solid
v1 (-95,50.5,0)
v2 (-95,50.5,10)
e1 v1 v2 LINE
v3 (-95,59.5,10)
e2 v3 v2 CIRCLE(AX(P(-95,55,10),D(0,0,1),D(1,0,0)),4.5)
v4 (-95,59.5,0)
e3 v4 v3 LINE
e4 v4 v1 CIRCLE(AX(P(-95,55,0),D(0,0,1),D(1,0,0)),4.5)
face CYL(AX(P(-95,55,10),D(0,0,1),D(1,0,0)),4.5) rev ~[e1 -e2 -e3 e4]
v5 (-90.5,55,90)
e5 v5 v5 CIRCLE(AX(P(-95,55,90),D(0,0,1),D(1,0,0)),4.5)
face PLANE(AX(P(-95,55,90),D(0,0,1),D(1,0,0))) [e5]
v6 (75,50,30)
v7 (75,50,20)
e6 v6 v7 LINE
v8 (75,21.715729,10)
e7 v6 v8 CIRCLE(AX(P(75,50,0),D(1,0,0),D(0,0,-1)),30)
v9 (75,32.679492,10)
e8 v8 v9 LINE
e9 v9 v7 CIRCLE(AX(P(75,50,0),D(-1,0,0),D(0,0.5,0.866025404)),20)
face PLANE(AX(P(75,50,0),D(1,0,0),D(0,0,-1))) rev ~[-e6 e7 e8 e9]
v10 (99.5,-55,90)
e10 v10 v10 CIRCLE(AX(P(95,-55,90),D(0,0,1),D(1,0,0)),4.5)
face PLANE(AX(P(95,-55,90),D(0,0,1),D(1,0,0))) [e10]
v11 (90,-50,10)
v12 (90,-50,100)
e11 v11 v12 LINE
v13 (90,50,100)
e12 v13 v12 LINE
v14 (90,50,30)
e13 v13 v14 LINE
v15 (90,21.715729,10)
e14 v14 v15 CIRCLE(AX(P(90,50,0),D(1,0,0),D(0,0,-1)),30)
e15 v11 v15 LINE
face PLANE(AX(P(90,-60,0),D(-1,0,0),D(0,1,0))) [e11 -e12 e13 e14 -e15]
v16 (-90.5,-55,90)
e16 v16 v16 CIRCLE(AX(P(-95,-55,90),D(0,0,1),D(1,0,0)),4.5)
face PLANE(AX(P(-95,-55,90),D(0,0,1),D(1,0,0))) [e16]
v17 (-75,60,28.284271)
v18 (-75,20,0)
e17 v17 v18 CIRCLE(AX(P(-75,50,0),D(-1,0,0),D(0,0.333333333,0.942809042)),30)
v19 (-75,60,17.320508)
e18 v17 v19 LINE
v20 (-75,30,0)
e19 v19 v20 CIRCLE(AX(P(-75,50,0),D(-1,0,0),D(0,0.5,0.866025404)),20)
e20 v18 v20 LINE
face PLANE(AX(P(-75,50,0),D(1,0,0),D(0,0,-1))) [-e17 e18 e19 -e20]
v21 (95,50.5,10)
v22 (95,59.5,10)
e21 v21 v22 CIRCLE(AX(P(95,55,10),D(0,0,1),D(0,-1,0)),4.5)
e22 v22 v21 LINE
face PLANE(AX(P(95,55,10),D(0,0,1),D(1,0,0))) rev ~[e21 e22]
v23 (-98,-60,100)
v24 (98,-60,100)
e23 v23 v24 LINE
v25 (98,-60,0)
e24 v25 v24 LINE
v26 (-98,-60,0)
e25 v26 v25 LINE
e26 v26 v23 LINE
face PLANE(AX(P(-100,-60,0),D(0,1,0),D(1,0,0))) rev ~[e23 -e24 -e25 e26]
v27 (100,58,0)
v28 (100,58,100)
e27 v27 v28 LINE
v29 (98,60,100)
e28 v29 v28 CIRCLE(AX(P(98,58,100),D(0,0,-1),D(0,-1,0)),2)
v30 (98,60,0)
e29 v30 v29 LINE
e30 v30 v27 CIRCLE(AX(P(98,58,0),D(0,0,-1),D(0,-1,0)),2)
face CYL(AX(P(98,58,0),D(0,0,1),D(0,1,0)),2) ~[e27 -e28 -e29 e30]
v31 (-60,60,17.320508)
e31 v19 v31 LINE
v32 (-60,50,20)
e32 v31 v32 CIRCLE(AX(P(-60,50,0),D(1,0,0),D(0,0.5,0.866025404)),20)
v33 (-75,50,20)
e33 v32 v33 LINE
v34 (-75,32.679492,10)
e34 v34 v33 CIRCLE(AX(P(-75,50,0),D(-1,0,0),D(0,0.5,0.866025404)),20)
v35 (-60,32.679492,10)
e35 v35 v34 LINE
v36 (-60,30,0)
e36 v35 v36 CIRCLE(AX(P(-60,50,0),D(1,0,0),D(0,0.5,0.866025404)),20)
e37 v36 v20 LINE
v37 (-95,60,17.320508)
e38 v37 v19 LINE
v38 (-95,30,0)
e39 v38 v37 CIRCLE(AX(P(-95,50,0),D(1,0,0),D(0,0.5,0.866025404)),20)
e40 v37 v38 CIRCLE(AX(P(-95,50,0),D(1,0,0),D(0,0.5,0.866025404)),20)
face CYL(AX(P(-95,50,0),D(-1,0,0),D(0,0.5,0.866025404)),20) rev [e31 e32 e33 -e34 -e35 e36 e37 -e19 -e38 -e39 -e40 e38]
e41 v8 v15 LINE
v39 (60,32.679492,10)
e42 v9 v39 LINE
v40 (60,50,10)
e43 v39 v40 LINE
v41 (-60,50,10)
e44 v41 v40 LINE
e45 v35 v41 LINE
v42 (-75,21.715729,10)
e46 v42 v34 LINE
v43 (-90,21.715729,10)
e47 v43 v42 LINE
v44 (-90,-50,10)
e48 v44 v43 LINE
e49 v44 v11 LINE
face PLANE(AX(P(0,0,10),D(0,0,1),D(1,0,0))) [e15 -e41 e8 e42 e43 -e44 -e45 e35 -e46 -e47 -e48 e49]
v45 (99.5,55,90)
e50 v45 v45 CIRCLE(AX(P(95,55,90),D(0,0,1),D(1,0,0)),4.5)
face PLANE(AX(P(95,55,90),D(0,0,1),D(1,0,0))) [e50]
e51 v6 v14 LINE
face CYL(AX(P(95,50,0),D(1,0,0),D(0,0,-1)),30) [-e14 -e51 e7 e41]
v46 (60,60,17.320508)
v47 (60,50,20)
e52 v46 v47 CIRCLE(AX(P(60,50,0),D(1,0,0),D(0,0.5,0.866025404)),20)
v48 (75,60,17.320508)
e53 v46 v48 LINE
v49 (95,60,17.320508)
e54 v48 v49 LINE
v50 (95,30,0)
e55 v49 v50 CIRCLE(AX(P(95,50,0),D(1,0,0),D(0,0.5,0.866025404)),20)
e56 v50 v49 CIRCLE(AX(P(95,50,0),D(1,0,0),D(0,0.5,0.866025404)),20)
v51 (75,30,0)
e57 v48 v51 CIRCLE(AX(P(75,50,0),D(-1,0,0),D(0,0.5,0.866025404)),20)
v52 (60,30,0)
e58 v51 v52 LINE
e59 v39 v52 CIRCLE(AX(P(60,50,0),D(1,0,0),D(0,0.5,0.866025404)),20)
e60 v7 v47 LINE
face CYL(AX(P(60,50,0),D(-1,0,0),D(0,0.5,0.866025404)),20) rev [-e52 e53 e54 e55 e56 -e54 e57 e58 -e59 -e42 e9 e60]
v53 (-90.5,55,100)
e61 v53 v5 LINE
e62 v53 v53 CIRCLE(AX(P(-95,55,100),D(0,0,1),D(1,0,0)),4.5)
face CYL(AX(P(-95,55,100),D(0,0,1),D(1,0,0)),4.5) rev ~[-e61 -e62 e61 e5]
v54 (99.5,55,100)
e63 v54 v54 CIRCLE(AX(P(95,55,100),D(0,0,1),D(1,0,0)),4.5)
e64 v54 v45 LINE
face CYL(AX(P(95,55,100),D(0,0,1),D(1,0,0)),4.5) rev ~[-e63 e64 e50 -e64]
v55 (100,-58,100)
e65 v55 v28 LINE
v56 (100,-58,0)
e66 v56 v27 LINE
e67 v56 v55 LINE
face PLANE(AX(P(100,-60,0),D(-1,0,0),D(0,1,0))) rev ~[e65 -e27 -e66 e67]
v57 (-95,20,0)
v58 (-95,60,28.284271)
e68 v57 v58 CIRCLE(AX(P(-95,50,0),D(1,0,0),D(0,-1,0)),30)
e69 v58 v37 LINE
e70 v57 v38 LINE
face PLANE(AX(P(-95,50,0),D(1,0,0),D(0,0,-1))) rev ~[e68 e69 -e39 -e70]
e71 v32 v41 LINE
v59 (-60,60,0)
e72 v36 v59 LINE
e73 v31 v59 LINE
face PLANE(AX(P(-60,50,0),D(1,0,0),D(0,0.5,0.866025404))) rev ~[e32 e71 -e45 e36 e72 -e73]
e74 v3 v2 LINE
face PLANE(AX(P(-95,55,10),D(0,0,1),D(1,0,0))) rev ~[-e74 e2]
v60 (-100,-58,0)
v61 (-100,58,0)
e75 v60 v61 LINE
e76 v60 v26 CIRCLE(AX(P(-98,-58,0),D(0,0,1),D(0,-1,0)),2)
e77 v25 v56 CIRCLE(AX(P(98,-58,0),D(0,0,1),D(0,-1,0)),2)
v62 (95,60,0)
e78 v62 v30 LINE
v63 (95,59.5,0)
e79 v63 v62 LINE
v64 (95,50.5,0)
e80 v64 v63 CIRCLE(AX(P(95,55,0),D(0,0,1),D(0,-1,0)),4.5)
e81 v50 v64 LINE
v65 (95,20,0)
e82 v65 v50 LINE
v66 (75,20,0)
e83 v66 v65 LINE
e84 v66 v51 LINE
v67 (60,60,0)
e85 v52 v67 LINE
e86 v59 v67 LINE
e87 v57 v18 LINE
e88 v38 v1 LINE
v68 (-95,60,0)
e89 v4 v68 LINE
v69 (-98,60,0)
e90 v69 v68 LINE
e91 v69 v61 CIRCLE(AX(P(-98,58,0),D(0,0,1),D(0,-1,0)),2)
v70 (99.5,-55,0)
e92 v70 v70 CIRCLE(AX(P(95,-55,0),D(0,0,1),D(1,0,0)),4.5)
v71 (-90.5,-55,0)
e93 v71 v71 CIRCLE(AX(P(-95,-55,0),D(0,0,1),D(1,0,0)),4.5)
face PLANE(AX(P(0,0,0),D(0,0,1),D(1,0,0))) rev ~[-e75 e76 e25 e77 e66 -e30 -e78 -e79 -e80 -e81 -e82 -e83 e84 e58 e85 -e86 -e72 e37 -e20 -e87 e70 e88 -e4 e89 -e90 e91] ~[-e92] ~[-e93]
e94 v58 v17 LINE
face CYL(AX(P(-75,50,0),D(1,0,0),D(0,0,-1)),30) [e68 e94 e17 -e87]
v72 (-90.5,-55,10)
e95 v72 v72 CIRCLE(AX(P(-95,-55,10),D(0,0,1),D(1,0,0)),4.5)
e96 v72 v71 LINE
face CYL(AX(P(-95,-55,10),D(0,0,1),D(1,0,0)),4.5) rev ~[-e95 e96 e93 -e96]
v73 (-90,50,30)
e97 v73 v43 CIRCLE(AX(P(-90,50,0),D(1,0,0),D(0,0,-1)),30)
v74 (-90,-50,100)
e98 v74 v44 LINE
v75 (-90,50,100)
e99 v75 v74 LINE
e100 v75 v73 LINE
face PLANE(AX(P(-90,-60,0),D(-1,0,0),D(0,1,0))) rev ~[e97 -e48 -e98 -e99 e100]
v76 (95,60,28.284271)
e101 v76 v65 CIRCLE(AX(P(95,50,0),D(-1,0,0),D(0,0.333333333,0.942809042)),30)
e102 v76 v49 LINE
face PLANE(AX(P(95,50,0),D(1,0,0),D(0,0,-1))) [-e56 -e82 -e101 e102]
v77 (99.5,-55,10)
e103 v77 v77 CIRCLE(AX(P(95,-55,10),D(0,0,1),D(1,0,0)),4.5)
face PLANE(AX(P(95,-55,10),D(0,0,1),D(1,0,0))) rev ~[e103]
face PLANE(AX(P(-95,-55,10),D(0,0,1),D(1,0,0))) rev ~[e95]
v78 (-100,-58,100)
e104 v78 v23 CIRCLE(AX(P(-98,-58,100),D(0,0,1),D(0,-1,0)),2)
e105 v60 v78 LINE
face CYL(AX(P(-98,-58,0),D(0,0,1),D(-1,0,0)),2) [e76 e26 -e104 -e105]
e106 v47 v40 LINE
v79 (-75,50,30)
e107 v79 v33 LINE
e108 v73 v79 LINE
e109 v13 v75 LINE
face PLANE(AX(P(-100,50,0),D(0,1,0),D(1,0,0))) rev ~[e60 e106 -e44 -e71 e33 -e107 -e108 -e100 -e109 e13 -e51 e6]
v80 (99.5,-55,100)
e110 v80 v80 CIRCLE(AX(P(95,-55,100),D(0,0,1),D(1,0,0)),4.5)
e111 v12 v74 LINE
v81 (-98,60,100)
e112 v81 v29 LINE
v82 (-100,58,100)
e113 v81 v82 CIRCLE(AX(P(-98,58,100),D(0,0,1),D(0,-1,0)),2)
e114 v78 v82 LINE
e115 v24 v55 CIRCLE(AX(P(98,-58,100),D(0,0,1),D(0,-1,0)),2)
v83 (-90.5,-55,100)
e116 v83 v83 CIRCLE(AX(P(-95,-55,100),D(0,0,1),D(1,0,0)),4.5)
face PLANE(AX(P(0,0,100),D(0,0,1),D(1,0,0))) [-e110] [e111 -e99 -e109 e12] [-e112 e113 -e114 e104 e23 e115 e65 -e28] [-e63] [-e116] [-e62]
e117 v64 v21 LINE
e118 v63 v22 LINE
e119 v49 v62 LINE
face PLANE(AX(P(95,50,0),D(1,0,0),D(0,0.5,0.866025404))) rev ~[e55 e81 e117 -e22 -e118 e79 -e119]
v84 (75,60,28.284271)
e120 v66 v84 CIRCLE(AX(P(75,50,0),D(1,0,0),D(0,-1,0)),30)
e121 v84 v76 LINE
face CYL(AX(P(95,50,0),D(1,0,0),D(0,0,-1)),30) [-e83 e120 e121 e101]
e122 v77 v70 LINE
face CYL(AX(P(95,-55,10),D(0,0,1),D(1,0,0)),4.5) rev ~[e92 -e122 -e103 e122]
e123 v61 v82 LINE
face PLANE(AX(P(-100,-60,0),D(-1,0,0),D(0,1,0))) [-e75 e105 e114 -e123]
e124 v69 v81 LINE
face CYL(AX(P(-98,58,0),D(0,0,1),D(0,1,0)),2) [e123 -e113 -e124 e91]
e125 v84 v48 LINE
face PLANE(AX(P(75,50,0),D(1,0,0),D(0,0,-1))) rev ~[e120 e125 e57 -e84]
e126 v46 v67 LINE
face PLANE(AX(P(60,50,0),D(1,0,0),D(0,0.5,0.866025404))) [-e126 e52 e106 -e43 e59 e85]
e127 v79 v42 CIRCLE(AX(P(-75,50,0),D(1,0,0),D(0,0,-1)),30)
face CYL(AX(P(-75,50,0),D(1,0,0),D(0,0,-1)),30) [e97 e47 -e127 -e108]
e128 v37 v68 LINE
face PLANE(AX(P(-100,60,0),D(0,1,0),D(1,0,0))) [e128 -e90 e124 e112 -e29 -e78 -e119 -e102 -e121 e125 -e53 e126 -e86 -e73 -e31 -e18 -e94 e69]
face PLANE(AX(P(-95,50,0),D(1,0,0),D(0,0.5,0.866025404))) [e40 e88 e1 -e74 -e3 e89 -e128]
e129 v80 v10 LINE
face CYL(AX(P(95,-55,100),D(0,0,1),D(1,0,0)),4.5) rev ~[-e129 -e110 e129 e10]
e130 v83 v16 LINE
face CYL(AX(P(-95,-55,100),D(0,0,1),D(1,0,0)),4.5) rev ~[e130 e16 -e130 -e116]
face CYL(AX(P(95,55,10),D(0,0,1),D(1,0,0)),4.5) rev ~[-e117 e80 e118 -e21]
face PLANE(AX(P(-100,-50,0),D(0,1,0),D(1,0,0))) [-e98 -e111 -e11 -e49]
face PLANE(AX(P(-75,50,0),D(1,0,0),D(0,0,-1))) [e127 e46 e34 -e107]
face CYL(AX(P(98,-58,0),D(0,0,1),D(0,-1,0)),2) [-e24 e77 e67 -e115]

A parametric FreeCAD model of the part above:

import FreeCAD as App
import Part
import Sketcher

V = App.Vector


def edges_at(feature, points):
    """Names of the edges that pass closest to the given points."""
    edges = feature.Shape.Edges
    near = lambda p: min(range(len(edges)), key=lambda i: edges[i].distToShape(Part.Vertex(*p))[0])
    return sorted({f"Edge{near(p) + 1}" for p in points})


def faces_at(feature, points):
    """Names of the faces that lie closest to the given points."""
    faces = feature.Shape.Faces
    near = lambda p: min(range(len(faces)), key=lambda i: faces[i].distToShape(Part.Vertex(*p))[0])
    return sorted({f"Face{near(p) + 1}" for p in points})


def add_polygon(sketch, points):
    """Adds a closed chain of lines whose ends are joined by coincident constraints."""
    first, n = sketch.GeometryCount, len(points)
    for a, b in zip(points, points[1:] + points[:1]):
        sketch.addGeometry(Part.LineSegment(App.Vector(*a, 0), App.Vector(*b, 0)), False)
    for i in range(n):
        sketch.addConstraint(Sketcher.Constraint("Coincident", first + i, 2, first + (i + 1) % n, 1))

doc = App.newDocument("Part")
body = doc.addObject("PartDesign::Body", "Body")

# Sketch on XY plane
sketch1 = body.newObject("Sketcher::SketchObject", "Sketch")
sketch1.AttachmentSupport = (doc.getObject("XY_Plane"), [""])
sketch1.MapMode = "FlatFace"
add_polygon(sketch1, [(-100, 60), (-100, -60), (100, -60), (100, 60)])  # lines 0-3
sketch1.addConstraint([
    Sketcher.Constraint("Vertical", 0),
    Sketcher.Constraint("Horizontal", 1),
    Sketcher.Constraint("Vertical", 2),
    Sketcher.Constraint("Horizontal", 3),
    Sketcher.Constraint("Symmetric", 0, 2, 2, 2, -1, 1),
    Sketcher.Constraint("DistanceX", 1, 1, 1, 2, 200.0),
    Sketcher.Constraint("DistanceY", 0, 2, 0, 1, 120.0),
])
pad1 = body.newObject("PartDesign::Pad", "Pad")
pad1.Profile = sketch1
pad1.Length = 100
doc.recompute()

thickness = body.newObject("PartDesign::Thickness", "Thickness")
thickness.Base = (pad1, faces_at(pad1, [(0, 0, 100)]))
thickness.Value = 10
thickness.Reversed = True
thickness.Join = "Intersection"

# Sketch on YZ plane
sketch2 = body.newObject("Sketcher::SketchObject", "Sketch001")
sketch2.AttachmentSupport = (doc.getObject("YZ_Plane"), [""])
sketch2.MapMode = "FlatFace"
sketch2.AttachmentOffset = App.Placement(V(0, 0, -75), App.Rotation())
sketch2.addGeometry(Part.Circle(V(50, 0, 0), V(0, 0, 1), 30), False)
sketch2.addConstraint([
    Sketcher.Constraint("PointOnObject", 0, 3, -1),
    Sketcher.Constraint("Diameter", 0, 60.0),
    Sketcher.Constraint("DistanceX", -1, 1, 0, 3, 50.0),
])
pad2 = body.newObject("PartDesign::Pad", "Pad001")
pad2.Profile = sketch2
pad2.Length = 20
pad2.Reversed = True

# Sketch on YZ plane
sketch3 = body.newObject("Sketcher::SketchObject", "Sketch002")
sketch3.AttachmentSupport = (doc.getObject("YZ_Plane"), [""])
sketch3.MapMode = "FlatFace"
sketch3.AttachmentOffset = App.Placement(V(0, 0, 95), App.Rotation())
sketch3.addGeometry(Part.Circle(V(50, 0, 0), V(0, 0, 1), 30), False)
sketch3.addConstraint([
    Sketcher.Constraint("PointOnObject", 0, 3, -1),
    Sketcher.Constraint("Diameter", 0, 60.0),
    Sketcher.Constraint("DistanceX", -1, 1, 0, 3, 50.0),
])
pad3 = body.newObject("PartDesign::Pad", "Pad002")
pad3.Profile = sketch3
pad3.Length = 20
pad3.Reversed = True

# Sketch on YZ plane
sketch4 = body.newObject("Sketcher::SketchObject", "Sketch003")
sketch4.AttachmentSupport = (doc.getObject("YZ_Plane"), [""])
sketch4.MapMode = "FlatFace"
sketch4.AttachmentOffset = App.Placement(V(0, 0, -95), App.Rotation())
sketch4.addGeometry(Part.Circle(V(50, 0, 0), V(0, 0, 1), 20), False)
sketch4.addConstraint([
    Sketcher.Constraint("PointOnObject", 0, 3, -1),
    Sketcher.Constraint("Diameter", 0, 40.0),
    Sketcher.Constraint("DistanceX", -1, 1, 0, 3, 50.0),
])
pocket1 = body.newObject("PartDesign::Pocket", "Pocket")
pocket1.Profile = sketch4
pocket1.Length = 35
pocket1.Reversed = True

# Sketch on YZ plane
sketch5 = body.newObject("Sketcher::SketchObject", "Sketch004")
sketch5.AttachmentSupport = (doc.getObject("YZ_Plane"), [""])
sketch5.MapMode = "FlatFace"
sketch5.AttachmentOffset = App.Placement(V(0, 0, 60), App.Rotation())
sketch5.addGeometry(Part.Circle(V(50, 0, 0), V(0, 0, 1), 20), False)
sketch5.addConstraint([
    Sketcher.Constraint("PointOnObject", 0, 3, -1),
    Sketcher.Constraint("Diameter", 0, 40.0),
    Sketcher.Constraint("DistanceX", -1, 1, 0, 3, 50.0),
])
pocket2 = body.newObject("PartDesign::Pocket", "Pocket001")
pocket2.Profile = sketch5
pocket2.Length = 35
pocket2.Reversed = True

# Sketch on XY plane
sketch6 = body.newObject("Sketcher::SketchObject", "Sketch005")
sketch6.AttachmentSupport = (doc.getObject("XY_Plane"), [""])
sketch6.MapMode = "FlatFace"
sketch6.AttachmentOffset = App.Placement(V(0, 0, 100), App.Rotation())
sketch6.addGeometry([
    Part.Circle(V(95, 55, 0), V(0, 0, 1), 4.5),
    Part.Circle(V(95, -55, 0), V(0, 0, 1), 4.5),
    Part.Circle(V(-95, 55, 0), V(0, 0, 1), 4.5),
    Part.Circle(V(-95, -55, 0), V(0, 0, 1), 4.5),
], False)
sketch6.addConstraint([
    Sketcher.Constraint("Equal", 0, 1),
    Sketcher.Constraint("Equal", 1, 2),
    Sketcher.Constraint("Equal", 2, 3),
    Sketcher.Constraint("Symmetric", 1, 3, 2, 3, -1, 1),
    Sketcher.Constraint("Symmetric", 0, 3, 3, 3, -1, 1),
    Sketcher.Constraint("Symmetric", 0, 3, 2, 3, -2),
    Sketcher.Constraint("Diameter", 0, 9.0),
    Sketcher.Constraint("DistanceX", -1, 1, 0, 3, 95.0),
    Sketcher.Constraint("DistanceY", -1, 1, 0, 3, 55.0),
])
pocket3 = body.newObject("PartDesign::Pocket", "Pocket002")
pocket3.Profile = sketch6
pocket3.Length = 10

# Sketch on XY plane
sketch7 = body.newObject("Sketcher::SketchObject", "Sketch006")
sketch7.AttachmentSupport = (doc.getObject("XY_Plane"), [""])
sketch7.MapMode = "FlatFace"
sketch7.AttachmentOffset = App.Placement(V(0, 0, 10), App.Rotation())
sketch7.addGeometry([
    Part.Circle(V(95, 55, 0), V(0, 0, 1), 4.5),
    Part.Circle(V(95, -55, 0), V(0, 0, 1), 4.5),
    Part.Circle(V(-95, 55, 0), V(0, 0, 1), 4.5),
    Part.Circle(V(-95, -55, 0), V(0, 0, 1), 4.5),
], False)
sketch7.addConstraint([
    Sketcher.Constraint("Equal", 0, 1),
    Sketcher.Constraint("Equal", 1, 2),
    Sketcher.Constraint("Equal", 2, 3),
    Sketcher.Constraint("Symmetric", 1, 3, 2, 3, -1, 1),
    Sketcher.Constraint("Symmetric", 0, 3, 3, 3, -1, 1),
    Sketcher.Constraint("Symmetric", 0, 3, 2, 3, -2),
    Sketcher.Constraint("Diameter", 0, 9.0),
    Sketcher.Constraint("DistanceX", -1, 1, 0, 3, 95.0),
    Sketcher.Constraint("DistanceY", -1, 1, 0, 3, 55.0),
])
pocket4 = body.newObject("PartDesign::Pocket", "Pocket003")
pocket4.Profile = sketch7
pocket4.Length = 10
doc.recompute()

fillet = body.newObject("PartDesign::Fillet", "Fillet")
fillet.Base = (pocket4, edges_at(pocket4, [
    (100, -60, 50),
    (-100, -60, 50),
    (-100, 60, 50),
    (100, 60, 50),
]))
fillet.Radius = 2

doc.recompute()
